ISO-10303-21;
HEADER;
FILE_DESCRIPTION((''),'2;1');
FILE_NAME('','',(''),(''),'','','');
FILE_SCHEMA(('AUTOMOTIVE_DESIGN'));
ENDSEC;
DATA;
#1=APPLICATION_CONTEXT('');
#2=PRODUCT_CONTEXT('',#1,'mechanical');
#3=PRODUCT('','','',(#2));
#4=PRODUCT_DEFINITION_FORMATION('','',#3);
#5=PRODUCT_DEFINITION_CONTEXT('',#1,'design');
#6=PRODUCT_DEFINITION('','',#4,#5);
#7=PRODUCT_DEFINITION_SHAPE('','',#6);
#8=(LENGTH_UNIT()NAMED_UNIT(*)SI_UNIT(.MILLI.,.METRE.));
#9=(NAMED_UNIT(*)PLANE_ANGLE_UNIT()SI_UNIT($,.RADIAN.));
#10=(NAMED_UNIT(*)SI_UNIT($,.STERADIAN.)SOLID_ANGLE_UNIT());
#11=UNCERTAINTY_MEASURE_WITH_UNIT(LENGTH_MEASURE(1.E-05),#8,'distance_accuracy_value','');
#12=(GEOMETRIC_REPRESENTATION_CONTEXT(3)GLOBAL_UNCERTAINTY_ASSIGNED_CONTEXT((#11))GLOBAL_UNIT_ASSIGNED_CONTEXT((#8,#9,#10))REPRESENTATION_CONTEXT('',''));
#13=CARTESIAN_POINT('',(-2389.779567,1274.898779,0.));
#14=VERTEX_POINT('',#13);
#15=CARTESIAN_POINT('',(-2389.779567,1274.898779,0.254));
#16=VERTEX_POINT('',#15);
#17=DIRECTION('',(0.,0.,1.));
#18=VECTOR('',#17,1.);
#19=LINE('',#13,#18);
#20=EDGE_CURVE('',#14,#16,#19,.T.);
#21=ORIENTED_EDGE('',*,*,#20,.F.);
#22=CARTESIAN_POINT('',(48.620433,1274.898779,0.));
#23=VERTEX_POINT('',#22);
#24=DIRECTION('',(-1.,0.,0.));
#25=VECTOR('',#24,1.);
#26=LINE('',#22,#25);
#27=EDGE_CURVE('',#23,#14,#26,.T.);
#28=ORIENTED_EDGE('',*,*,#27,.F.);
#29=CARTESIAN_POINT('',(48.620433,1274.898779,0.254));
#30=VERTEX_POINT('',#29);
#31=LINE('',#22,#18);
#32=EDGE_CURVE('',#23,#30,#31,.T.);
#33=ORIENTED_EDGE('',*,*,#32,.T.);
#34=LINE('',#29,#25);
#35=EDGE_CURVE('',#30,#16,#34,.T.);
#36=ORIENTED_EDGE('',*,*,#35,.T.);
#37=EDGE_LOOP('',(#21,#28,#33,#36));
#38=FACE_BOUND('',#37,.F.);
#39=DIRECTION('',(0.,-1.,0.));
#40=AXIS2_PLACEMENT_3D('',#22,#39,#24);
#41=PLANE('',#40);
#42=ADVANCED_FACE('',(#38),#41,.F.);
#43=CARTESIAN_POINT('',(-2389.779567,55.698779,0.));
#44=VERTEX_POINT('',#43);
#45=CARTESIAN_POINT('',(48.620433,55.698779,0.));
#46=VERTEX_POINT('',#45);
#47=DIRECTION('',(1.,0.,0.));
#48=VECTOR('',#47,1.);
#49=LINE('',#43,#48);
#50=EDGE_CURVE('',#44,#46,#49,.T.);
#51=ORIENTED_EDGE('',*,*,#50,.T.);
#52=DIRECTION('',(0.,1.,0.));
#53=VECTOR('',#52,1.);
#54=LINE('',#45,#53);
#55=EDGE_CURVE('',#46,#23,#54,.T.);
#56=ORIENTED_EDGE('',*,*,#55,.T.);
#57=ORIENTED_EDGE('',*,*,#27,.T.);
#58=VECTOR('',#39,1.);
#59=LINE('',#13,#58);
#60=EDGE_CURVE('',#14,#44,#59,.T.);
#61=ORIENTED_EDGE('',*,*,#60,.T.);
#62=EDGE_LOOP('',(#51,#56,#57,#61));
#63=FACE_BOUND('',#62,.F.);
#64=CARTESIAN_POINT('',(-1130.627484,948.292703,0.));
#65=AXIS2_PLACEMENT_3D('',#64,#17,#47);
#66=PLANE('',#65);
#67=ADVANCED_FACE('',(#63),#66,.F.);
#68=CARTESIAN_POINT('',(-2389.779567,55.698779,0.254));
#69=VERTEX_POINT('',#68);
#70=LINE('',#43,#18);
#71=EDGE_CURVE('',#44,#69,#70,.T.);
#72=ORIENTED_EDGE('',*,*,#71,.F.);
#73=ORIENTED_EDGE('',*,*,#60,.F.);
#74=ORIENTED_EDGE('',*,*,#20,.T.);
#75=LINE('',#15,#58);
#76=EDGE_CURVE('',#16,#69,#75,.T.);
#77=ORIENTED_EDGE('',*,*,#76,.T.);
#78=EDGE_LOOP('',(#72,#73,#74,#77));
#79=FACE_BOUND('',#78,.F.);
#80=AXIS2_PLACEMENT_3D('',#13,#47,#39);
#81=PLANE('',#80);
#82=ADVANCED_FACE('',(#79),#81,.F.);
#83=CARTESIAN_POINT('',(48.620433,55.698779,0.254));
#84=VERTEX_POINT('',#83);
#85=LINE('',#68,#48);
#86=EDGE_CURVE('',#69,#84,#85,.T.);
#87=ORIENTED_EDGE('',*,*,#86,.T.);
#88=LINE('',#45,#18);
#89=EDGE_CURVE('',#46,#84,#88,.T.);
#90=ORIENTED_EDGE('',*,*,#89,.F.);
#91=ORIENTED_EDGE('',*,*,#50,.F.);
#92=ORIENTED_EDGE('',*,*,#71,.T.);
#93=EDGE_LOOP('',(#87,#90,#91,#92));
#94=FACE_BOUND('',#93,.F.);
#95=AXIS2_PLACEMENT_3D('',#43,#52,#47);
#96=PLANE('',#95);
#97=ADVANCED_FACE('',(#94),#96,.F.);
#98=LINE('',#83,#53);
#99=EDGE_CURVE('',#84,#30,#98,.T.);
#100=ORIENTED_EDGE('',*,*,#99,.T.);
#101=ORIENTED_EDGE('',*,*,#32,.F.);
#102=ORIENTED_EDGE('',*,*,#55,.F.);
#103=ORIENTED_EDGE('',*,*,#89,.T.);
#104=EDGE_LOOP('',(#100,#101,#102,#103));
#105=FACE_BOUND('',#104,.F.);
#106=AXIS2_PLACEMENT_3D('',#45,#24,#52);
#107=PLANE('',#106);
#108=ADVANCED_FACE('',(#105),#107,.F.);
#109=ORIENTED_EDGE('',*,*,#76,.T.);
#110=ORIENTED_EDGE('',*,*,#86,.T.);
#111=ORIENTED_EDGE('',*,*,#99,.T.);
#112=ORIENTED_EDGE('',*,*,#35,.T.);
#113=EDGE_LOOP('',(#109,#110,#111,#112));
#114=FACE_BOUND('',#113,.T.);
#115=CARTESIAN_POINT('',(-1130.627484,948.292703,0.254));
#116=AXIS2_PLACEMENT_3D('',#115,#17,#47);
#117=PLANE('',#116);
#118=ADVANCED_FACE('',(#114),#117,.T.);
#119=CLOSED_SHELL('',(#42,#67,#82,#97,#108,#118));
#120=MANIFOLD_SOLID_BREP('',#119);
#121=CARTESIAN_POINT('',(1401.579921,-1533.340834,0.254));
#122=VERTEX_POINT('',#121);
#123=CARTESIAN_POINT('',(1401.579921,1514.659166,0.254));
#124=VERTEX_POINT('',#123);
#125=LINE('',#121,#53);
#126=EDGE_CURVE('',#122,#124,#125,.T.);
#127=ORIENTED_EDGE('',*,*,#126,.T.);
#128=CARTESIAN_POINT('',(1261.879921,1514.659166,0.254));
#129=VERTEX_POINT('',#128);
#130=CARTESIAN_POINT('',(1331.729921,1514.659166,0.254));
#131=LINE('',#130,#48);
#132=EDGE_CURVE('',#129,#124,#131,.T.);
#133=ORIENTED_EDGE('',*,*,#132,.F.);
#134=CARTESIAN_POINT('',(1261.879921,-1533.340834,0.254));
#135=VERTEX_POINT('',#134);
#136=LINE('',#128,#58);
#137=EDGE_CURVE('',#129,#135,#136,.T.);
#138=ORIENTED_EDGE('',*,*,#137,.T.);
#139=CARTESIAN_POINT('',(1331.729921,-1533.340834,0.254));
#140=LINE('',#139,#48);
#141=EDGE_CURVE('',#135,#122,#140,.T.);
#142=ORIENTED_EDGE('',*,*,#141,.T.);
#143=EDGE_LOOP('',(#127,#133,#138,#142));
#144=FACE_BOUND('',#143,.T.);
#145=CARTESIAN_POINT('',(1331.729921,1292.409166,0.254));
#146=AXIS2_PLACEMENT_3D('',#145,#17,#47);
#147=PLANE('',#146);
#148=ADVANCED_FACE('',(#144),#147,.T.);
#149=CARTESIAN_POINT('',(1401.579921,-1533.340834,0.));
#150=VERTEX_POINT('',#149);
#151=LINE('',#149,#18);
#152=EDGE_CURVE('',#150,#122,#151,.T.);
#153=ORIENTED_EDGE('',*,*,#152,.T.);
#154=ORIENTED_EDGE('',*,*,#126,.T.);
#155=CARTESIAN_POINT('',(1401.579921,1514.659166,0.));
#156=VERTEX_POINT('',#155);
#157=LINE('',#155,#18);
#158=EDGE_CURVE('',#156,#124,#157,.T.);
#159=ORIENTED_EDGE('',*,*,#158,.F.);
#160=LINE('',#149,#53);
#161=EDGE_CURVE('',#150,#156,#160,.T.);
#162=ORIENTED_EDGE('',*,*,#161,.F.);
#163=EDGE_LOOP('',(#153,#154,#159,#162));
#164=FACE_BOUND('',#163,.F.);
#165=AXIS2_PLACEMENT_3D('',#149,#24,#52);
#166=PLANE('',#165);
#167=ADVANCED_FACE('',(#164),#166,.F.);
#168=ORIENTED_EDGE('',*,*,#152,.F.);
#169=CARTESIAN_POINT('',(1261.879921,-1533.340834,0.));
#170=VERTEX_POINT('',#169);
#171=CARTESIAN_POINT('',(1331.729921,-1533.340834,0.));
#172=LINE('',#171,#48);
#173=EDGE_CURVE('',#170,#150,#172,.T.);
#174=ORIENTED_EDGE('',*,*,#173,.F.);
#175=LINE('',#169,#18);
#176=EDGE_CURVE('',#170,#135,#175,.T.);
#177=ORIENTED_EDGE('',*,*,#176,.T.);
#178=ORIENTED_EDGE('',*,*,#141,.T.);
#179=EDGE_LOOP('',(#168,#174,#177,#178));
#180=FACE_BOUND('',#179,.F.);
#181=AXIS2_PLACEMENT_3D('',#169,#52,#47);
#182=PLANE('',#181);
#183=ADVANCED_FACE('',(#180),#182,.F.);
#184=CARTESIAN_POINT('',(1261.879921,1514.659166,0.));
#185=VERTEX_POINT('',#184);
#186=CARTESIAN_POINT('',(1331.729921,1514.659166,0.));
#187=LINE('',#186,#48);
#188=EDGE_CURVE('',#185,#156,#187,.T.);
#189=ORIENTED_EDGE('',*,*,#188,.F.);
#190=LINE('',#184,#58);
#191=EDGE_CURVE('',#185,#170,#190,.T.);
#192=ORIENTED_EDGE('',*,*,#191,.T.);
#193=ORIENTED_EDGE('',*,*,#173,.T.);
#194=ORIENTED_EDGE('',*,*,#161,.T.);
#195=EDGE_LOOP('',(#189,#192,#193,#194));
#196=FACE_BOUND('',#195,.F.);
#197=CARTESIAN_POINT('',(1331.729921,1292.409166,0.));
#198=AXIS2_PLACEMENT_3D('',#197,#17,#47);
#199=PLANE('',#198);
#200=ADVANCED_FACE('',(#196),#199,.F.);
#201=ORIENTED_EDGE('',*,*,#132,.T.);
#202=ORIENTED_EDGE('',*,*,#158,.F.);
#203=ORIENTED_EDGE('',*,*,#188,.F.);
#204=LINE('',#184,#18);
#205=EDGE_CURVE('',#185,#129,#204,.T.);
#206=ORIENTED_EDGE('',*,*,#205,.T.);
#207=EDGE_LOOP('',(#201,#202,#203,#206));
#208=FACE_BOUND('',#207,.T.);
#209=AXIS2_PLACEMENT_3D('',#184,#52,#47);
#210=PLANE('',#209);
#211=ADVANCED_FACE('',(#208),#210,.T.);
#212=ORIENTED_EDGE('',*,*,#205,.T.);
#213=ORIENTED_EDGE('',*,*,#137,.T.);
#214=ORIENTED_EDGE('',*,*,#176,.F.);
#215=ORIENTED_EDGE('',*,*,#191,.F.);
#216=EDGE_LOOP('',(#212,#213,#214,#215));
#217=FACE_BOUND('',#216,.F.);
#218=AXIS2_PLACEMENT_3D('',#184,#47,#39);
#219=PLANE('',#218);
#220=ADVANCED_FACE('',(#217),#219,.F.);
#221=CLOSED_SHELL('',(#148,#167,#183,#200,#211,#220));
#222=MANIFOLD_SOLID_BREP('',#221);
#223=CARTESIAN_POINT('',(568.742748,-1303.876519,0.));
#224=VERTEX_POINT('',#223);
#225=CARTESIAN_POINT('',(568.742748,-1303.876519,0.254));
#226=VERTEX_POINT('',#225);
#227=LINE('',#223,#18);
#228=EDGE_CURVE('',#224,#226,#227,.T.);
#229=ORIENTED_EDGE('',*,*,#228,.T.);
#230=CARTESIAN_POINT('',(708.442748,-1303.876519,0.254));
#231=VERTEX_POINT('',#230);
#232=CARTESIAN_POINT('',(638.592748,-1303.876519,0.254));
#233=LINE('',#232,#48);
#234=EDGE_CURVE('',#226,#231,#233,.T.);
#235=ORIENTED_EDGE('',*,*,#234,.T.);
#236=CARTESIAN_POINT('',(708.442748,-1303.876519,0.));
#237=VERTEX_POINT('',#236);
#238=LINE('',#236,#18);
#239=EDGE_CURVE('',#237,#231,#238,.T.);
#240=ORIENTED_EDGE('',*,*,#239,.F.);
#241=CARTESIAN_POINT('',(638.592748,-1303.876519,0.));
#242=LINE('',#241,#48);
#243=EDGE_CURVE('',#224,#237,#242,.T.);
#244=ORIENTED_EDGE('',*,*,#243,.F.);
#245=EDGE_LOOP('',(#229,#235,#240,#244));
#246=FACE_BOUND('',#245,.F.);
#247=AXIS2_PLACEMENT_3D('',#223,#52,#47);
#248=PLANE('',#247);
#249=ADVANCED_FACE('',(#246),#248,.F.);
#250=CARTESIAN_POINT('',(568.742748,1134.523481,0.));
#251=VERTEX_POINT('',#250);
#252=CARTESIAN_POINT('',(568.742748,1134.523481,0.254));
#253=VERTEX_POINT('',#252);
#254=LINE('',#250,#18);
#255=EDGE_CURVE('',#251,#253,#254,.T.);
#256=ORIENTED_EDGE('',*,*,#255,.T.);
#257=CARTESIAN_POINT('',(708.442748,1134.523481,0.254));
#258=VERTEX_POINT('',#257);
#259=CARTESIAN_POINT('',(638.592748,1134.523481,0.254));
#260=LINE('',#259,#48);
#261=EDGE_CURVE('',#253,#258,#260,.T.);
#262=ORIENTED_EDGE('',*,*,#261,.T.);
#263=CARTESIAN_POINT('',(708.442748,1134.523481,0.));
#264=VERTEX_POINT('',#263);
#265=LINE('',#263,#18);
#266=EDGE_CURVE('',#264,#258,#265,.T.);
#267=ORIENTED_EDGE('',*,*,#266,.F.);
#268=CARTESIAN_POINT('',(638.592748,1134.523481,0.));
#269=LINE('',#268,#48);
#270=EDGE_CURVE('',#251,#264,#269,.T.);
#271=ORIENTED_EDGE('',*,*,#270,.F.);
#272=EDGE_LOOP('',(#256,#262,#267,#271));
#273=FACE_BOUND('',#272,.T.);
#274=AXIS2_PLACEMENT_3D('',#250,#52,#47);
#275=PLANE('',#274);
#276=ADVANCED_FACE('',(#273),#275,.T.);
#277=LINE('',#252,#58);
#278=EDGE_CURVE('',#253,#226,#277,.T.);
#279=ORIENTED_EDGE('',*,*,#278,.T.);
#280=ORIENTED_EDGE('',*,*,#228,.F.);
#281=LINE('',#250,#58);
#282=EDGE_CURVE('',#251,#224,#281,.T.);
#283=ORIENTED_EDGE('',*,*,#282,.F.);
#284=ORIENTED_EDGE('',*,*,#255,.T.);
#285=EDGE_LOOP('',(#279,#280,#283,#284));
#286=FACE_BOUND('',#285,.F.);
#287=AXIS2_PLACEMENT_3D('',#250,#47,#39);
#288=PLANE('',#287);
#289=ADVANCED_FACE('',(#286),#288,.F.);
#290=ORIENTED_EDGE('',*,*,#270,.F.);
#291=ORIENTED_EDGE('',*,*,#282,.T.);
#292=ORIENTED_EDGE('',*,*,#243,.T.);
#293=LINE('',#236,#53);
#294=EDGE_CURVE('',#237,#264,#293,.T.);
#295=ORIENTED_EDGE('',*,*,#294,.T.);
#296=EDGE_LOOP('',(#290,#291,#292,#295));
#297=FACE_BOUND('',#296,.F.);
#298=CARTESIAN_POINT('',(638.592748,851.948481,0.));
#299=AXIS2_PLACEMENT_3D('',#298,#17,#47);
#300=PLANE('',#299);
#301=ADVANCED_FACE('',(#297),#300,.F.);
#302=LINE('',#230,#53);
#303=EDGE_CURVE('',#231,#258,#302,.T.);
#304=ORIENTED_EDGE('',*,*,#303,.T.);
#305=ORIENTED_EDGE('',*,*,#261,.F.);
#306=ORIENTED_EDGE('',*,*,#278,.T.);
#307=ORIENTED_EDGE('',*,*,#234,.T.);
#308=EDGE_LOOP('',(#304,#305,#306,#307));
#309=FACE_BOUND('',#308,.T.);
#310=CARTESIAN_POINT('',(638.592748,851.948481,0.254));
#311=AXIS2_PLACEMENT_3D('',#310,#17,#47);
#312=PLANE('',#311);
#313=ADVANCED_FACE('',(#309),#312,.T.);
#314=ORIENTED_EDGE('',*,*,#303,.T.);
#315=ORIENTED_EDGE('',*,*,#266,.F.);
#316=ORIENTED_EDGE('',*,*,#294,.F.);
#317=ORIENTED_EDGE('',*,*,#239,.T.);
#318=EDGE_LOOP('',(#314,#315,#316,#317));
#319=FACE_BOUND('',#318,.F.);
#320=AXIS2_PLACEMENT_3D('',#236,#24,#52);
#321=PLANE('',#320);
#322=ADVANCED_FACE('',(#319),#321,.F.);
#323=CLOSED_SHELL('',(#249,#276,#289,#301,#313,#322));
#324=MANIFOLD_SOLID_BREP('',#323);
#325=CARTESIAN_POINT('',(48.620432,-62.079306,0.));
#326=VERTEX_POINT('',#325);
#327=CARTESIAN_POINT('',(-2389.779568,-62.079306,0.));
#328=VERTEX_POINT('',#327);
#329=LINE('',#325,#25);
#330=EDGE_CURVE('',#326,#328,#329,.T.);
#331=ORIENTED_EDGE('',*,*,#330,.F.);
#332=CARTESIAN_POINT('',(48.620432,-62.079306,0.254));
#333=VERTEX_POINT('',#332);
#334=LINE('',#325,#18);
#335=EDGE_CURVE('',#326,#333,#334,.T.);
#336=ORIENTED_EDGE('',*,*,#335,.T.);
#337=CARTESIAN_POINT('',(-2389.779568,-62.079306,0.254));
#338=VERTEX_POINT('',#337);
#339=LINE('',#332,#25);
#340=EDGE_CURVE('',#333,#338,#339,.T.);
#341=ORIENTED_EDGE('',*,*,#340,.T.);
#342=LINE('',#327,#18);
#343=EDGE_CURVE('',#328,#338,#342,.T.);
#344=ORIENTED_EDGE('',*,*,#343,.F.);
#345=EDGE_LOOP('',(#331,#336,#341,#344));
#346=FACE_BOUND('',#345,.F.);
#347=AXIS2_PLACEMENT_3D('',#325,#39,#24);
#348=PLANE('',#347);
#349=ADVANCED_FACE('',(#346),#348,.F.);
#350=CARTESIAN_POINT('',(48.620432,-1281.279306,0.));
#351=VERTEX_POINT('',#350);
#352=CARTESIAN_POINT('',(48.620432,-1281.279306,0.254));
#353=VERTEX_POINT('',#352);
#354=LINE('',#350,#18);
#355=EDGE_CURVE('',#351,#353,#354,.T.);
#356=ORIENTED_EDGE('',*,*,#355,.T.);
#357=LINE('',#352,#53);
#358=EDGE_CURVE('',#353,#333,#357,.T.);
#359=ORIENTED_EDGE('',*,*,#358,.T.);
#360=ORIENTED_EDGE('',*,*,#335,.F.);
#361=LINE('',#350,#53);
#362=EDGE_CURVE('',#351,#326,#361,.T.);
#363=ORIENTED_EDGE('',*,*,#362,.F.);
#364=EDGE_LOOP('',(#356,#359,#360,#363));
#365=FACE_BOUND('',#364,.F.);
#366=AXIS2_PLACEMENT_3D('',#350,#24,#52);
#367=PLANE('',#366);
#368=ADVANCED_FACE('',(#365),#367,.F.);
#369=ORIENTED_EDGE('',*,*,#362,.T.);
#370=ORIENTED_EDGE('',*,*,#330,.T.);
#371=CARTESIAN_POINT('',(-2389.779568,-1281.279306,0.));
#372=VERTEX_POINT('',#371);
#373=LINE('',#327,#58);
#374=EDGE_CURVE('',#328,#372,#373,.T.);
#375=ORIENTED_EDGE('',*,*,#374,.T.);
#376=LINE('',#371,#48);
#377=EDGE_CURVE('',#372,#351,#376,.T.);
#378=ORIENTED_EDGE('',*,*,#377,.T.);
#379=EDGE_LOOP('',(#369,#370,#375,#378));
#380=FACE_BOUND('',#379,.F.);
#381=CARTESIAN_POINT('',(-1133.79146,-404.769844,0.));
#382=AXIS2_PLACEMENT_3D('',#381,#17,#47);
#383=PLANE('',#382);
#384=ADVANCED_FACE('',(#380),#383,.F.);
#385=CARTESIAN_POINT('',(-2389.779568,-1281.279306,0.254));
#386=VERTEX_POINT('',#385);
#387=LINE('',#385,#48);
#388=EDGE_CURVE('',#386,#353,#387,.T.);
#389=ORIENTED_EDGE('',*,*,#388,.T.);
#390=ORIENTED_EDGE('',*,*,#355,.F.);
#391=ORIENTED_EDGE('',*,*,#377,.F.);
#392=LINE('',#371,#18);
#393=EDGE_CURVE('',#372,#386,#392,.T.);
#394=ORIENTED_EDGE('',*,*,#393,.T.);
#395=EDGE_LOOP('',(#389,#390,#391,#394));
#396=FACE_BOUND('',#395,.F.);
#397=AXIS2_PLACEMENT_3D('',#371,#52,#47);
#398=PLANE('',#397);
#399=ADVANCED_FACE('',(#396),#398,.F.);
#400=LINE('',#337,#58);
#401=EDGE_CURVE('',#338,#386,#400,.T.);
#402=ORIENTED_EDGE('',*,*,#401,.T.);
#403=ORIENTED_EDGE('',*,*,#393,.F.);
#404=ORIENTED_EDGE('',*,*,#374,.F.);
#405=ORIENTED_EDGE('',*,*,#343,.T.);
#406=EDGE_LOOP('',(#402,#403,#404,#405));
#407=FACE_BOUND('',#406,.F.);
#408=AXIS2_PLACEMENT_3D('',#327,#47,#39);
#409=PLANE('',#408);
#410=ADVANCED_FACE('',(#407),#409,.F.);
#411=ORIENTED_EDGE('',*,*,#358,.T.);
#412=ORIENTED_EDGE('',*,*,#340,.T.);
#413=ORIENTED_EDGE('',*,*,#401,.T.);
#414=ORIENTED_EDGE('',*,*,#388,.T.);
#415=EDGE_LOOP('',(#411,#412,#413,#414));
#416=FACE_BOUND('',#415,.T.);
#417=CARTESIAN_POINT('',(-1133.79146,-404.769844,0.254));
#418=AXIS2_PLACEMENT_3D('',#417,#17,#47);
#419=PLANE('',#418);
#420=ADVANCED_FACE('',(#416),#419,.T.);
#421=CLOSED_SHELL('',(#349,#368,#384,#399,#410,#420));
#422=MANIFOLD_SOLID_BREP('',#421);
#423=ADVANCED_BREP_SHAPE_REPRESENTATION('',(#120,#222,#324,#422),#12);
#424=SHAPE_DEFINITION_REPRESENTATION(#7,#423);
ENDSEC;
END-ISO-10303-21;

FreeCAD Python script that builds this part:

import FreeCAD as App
import Part
import Sketcher
Q = App.Units.Quantity

doc = App.newDocument("Part")
body = doc.addObject("PartDesign::Body", "Body")
body.AllowCompound = True

sketch1 = body.newObject("Sketcher::SketchObject", "Sketch")
sketch1.AttachmentSupport = (doc.getObject("XY_Plane"), [""])
sketch1.MapMode = "FlatFace"
sketch1.addGeometry([
    Part.LineSegment(App.Vector(49, 1275, 0), App.Vector(-2390, 1275, 0)),
    Part.LineSegment(App.Vector(-2390, 1275, 0), App.Vector(-2390, 56, 0)),
    Part.LineSegment(App.Vector(-2390, 56, 0), App.Vector(49, 56, 0)),
    Part.LineSegment(App.Vector(49, 56, 0), App.Vector(49, 1275, 0)),
    Part.LineSegment(App.Vector(49, -62, 0), App.Vector(-2390, -62, 0)),
    Part.LineSegment(App.Vector(-2390, -62, 0), App.Vector(-2390, -1281, 0)),
    Part.LineSegment(App.Vector(-2390, -1281, 0), App.Vector(49, -1281, 0)),
    Part.LineSegment(App.Vector(49, -1281, 0), App.Vector(49, -62, 0)),
    Part.LineSegment(App.Vector(569, 1135, 0), App.Vector(569, -1304, 0)),
    Part.LineSegment(App.Vector(569, -1304, 0), App.Vector(708, -1304, 0)),
    Part.LineSegment(App.Vector(708, -1304, 0), App.Vector(708, 1135, 0)),
    Part.LineSegment(App.Vector(708, 1135, 0), App.Vector(569, 1135, 0)),
    Part.LineSegment(App.Vector(1262, 1515, 0), App.Vector(1262, -1533, 0)),
    Part.LineSegment(App.Vector(1262, -1533, 0), App.Vector(1402, -1533, 0)),
    Part.LineSegment(App.Vector(1402, -1533, 0), App.Vector(1402, 1515, 0)),
    Part.LineSegment(App.Vector(1402, 1515, 0), App.Vector(1262, 1515, 0)),
], False)
sketch1.addConstraint([
    Sketcher.Constraint("Coincident", 0, 2, 1, 1),
    Sketcher.Constraint("Coincident", 1, 2, 2, 1),
    Sketcher.Constraint("Coincident", 2, 2, 3, 1),
    Sketcher.Constraint("Coincident", 3, 2, 0, 1),
    Sketcher.Constraint("Coincident", 4, 2, 5, 1),
    Sketcher.Constraint("Coincident", 5, 2, 6, 1),
    Sketcher.Constraint("Coincident", 6, 2, 7, 1),
    Sketcher.Constraint("Coincident", 7, 2, 4, 1),
    Sketcher.Constraint("Coincident", 8, 2, 9, 1),
    Sketcher.Constraint("Coincident", 9, 2, 10, 1),
    Sketcher.Constraint("Coincident", 10, 2, 11, 1),
    Sketcher.Constraint("Coincident", 11, 2, 8, 1),
    Sketcher.Constraint("Coincident", 12, 2, 13, 1),
    Sketcher.Constraint("Coincident", 13, 2, 14, 1),
    Sketcher.Constraint("Coincident", 14, 2, 15, 1),
    Sketcher.Constraint("Coincident", 15, 2, 12, 1),
    Sketcher.Constraint("Horizontal", 0),
    Sketcher.Constraint("Vertical", 1),
    Sketcher.Constraint("Horizontal", 2),
    Sketcher.Constraint("Vertical", 3),
    Sketcher.Constraint("Horizontal", 4),
    Sketcher.Constraint("Vertical", 5),
    Sketcher.Constraint("Horizontal", 6),
    Sketcher.Constraint("Vertical", 7),
    Sketcher.Constraint("Vertical", 8),
    Sketcher.Constraint("Horizontal", 9),
    Sketcher.Constraint("Vertical", 10),
    Sketcher.Constraint("Horizontal", 11),
    Sketcher.Constraint("Vertical", 12),
    Sketcher.Constraint("Horizontal", 13),
    Sketcher.Constraint("Vertical", 14),
    Sketcher.Constraint("Horizontal", 15),
    Sketcher.Constraint("Vertical", 1, 2, 4, 2),
    Sketcher.Constraint("Vertical", 3, 2, 6, 2),
    Sketcher.Constraint("Equal", 11, 13),
    Sketcher.Constraint("Equal", 3, 5),
    Sketcher.Constraint("Equal", 6, 8),
    Sketcher.Constraint("DistanceX", 0, 2, 0, 1, Q("96 in")),
    Sketcher.Constraint("DistanceY", 1, 2, 1, 1, Q("48 in")),
    Sketcher.Constraint("DistanceY", 12, 2, 12, 1, Q("120 in")),
    Sketcher.Constraint("DistanceX", 9, 1, 9, 2, Q("5.5 in")),
    Sketcher.Constraint("DistanceY", 8, 2, 2, 2, Q("1359.575298 mm")),
    Sketcher.Constraint("DistanceY", -1, 1, 0, 2, Q("1274.898779 mm")),
    Sketcher.Constraint("DistanceX", -1, 1, 8, 2, Q("568.742748 mm")),
    Sketcher.Constraint("DistanceX", -1, 1, 12, 2, Q("1261.879921 mm")),
    Sketcher.Constraint("DistanceX", 6, 2, 12, 2, Q("1213.259489 mm")),
    Sketcher.Constraint("DistanceY", 12, 2, 6, 2, Q("252.061528 mm")),
    Sketcher.Constraint("DistanceY", 4, 2, -1, 1, Q("62.079306 mm")),
])
pad1 = body.newObject("PartDesign::Pad", "Pad")
pad1.Profile = sketch1
pad1.Length = Q("0.01 in")

doc.recompute()
